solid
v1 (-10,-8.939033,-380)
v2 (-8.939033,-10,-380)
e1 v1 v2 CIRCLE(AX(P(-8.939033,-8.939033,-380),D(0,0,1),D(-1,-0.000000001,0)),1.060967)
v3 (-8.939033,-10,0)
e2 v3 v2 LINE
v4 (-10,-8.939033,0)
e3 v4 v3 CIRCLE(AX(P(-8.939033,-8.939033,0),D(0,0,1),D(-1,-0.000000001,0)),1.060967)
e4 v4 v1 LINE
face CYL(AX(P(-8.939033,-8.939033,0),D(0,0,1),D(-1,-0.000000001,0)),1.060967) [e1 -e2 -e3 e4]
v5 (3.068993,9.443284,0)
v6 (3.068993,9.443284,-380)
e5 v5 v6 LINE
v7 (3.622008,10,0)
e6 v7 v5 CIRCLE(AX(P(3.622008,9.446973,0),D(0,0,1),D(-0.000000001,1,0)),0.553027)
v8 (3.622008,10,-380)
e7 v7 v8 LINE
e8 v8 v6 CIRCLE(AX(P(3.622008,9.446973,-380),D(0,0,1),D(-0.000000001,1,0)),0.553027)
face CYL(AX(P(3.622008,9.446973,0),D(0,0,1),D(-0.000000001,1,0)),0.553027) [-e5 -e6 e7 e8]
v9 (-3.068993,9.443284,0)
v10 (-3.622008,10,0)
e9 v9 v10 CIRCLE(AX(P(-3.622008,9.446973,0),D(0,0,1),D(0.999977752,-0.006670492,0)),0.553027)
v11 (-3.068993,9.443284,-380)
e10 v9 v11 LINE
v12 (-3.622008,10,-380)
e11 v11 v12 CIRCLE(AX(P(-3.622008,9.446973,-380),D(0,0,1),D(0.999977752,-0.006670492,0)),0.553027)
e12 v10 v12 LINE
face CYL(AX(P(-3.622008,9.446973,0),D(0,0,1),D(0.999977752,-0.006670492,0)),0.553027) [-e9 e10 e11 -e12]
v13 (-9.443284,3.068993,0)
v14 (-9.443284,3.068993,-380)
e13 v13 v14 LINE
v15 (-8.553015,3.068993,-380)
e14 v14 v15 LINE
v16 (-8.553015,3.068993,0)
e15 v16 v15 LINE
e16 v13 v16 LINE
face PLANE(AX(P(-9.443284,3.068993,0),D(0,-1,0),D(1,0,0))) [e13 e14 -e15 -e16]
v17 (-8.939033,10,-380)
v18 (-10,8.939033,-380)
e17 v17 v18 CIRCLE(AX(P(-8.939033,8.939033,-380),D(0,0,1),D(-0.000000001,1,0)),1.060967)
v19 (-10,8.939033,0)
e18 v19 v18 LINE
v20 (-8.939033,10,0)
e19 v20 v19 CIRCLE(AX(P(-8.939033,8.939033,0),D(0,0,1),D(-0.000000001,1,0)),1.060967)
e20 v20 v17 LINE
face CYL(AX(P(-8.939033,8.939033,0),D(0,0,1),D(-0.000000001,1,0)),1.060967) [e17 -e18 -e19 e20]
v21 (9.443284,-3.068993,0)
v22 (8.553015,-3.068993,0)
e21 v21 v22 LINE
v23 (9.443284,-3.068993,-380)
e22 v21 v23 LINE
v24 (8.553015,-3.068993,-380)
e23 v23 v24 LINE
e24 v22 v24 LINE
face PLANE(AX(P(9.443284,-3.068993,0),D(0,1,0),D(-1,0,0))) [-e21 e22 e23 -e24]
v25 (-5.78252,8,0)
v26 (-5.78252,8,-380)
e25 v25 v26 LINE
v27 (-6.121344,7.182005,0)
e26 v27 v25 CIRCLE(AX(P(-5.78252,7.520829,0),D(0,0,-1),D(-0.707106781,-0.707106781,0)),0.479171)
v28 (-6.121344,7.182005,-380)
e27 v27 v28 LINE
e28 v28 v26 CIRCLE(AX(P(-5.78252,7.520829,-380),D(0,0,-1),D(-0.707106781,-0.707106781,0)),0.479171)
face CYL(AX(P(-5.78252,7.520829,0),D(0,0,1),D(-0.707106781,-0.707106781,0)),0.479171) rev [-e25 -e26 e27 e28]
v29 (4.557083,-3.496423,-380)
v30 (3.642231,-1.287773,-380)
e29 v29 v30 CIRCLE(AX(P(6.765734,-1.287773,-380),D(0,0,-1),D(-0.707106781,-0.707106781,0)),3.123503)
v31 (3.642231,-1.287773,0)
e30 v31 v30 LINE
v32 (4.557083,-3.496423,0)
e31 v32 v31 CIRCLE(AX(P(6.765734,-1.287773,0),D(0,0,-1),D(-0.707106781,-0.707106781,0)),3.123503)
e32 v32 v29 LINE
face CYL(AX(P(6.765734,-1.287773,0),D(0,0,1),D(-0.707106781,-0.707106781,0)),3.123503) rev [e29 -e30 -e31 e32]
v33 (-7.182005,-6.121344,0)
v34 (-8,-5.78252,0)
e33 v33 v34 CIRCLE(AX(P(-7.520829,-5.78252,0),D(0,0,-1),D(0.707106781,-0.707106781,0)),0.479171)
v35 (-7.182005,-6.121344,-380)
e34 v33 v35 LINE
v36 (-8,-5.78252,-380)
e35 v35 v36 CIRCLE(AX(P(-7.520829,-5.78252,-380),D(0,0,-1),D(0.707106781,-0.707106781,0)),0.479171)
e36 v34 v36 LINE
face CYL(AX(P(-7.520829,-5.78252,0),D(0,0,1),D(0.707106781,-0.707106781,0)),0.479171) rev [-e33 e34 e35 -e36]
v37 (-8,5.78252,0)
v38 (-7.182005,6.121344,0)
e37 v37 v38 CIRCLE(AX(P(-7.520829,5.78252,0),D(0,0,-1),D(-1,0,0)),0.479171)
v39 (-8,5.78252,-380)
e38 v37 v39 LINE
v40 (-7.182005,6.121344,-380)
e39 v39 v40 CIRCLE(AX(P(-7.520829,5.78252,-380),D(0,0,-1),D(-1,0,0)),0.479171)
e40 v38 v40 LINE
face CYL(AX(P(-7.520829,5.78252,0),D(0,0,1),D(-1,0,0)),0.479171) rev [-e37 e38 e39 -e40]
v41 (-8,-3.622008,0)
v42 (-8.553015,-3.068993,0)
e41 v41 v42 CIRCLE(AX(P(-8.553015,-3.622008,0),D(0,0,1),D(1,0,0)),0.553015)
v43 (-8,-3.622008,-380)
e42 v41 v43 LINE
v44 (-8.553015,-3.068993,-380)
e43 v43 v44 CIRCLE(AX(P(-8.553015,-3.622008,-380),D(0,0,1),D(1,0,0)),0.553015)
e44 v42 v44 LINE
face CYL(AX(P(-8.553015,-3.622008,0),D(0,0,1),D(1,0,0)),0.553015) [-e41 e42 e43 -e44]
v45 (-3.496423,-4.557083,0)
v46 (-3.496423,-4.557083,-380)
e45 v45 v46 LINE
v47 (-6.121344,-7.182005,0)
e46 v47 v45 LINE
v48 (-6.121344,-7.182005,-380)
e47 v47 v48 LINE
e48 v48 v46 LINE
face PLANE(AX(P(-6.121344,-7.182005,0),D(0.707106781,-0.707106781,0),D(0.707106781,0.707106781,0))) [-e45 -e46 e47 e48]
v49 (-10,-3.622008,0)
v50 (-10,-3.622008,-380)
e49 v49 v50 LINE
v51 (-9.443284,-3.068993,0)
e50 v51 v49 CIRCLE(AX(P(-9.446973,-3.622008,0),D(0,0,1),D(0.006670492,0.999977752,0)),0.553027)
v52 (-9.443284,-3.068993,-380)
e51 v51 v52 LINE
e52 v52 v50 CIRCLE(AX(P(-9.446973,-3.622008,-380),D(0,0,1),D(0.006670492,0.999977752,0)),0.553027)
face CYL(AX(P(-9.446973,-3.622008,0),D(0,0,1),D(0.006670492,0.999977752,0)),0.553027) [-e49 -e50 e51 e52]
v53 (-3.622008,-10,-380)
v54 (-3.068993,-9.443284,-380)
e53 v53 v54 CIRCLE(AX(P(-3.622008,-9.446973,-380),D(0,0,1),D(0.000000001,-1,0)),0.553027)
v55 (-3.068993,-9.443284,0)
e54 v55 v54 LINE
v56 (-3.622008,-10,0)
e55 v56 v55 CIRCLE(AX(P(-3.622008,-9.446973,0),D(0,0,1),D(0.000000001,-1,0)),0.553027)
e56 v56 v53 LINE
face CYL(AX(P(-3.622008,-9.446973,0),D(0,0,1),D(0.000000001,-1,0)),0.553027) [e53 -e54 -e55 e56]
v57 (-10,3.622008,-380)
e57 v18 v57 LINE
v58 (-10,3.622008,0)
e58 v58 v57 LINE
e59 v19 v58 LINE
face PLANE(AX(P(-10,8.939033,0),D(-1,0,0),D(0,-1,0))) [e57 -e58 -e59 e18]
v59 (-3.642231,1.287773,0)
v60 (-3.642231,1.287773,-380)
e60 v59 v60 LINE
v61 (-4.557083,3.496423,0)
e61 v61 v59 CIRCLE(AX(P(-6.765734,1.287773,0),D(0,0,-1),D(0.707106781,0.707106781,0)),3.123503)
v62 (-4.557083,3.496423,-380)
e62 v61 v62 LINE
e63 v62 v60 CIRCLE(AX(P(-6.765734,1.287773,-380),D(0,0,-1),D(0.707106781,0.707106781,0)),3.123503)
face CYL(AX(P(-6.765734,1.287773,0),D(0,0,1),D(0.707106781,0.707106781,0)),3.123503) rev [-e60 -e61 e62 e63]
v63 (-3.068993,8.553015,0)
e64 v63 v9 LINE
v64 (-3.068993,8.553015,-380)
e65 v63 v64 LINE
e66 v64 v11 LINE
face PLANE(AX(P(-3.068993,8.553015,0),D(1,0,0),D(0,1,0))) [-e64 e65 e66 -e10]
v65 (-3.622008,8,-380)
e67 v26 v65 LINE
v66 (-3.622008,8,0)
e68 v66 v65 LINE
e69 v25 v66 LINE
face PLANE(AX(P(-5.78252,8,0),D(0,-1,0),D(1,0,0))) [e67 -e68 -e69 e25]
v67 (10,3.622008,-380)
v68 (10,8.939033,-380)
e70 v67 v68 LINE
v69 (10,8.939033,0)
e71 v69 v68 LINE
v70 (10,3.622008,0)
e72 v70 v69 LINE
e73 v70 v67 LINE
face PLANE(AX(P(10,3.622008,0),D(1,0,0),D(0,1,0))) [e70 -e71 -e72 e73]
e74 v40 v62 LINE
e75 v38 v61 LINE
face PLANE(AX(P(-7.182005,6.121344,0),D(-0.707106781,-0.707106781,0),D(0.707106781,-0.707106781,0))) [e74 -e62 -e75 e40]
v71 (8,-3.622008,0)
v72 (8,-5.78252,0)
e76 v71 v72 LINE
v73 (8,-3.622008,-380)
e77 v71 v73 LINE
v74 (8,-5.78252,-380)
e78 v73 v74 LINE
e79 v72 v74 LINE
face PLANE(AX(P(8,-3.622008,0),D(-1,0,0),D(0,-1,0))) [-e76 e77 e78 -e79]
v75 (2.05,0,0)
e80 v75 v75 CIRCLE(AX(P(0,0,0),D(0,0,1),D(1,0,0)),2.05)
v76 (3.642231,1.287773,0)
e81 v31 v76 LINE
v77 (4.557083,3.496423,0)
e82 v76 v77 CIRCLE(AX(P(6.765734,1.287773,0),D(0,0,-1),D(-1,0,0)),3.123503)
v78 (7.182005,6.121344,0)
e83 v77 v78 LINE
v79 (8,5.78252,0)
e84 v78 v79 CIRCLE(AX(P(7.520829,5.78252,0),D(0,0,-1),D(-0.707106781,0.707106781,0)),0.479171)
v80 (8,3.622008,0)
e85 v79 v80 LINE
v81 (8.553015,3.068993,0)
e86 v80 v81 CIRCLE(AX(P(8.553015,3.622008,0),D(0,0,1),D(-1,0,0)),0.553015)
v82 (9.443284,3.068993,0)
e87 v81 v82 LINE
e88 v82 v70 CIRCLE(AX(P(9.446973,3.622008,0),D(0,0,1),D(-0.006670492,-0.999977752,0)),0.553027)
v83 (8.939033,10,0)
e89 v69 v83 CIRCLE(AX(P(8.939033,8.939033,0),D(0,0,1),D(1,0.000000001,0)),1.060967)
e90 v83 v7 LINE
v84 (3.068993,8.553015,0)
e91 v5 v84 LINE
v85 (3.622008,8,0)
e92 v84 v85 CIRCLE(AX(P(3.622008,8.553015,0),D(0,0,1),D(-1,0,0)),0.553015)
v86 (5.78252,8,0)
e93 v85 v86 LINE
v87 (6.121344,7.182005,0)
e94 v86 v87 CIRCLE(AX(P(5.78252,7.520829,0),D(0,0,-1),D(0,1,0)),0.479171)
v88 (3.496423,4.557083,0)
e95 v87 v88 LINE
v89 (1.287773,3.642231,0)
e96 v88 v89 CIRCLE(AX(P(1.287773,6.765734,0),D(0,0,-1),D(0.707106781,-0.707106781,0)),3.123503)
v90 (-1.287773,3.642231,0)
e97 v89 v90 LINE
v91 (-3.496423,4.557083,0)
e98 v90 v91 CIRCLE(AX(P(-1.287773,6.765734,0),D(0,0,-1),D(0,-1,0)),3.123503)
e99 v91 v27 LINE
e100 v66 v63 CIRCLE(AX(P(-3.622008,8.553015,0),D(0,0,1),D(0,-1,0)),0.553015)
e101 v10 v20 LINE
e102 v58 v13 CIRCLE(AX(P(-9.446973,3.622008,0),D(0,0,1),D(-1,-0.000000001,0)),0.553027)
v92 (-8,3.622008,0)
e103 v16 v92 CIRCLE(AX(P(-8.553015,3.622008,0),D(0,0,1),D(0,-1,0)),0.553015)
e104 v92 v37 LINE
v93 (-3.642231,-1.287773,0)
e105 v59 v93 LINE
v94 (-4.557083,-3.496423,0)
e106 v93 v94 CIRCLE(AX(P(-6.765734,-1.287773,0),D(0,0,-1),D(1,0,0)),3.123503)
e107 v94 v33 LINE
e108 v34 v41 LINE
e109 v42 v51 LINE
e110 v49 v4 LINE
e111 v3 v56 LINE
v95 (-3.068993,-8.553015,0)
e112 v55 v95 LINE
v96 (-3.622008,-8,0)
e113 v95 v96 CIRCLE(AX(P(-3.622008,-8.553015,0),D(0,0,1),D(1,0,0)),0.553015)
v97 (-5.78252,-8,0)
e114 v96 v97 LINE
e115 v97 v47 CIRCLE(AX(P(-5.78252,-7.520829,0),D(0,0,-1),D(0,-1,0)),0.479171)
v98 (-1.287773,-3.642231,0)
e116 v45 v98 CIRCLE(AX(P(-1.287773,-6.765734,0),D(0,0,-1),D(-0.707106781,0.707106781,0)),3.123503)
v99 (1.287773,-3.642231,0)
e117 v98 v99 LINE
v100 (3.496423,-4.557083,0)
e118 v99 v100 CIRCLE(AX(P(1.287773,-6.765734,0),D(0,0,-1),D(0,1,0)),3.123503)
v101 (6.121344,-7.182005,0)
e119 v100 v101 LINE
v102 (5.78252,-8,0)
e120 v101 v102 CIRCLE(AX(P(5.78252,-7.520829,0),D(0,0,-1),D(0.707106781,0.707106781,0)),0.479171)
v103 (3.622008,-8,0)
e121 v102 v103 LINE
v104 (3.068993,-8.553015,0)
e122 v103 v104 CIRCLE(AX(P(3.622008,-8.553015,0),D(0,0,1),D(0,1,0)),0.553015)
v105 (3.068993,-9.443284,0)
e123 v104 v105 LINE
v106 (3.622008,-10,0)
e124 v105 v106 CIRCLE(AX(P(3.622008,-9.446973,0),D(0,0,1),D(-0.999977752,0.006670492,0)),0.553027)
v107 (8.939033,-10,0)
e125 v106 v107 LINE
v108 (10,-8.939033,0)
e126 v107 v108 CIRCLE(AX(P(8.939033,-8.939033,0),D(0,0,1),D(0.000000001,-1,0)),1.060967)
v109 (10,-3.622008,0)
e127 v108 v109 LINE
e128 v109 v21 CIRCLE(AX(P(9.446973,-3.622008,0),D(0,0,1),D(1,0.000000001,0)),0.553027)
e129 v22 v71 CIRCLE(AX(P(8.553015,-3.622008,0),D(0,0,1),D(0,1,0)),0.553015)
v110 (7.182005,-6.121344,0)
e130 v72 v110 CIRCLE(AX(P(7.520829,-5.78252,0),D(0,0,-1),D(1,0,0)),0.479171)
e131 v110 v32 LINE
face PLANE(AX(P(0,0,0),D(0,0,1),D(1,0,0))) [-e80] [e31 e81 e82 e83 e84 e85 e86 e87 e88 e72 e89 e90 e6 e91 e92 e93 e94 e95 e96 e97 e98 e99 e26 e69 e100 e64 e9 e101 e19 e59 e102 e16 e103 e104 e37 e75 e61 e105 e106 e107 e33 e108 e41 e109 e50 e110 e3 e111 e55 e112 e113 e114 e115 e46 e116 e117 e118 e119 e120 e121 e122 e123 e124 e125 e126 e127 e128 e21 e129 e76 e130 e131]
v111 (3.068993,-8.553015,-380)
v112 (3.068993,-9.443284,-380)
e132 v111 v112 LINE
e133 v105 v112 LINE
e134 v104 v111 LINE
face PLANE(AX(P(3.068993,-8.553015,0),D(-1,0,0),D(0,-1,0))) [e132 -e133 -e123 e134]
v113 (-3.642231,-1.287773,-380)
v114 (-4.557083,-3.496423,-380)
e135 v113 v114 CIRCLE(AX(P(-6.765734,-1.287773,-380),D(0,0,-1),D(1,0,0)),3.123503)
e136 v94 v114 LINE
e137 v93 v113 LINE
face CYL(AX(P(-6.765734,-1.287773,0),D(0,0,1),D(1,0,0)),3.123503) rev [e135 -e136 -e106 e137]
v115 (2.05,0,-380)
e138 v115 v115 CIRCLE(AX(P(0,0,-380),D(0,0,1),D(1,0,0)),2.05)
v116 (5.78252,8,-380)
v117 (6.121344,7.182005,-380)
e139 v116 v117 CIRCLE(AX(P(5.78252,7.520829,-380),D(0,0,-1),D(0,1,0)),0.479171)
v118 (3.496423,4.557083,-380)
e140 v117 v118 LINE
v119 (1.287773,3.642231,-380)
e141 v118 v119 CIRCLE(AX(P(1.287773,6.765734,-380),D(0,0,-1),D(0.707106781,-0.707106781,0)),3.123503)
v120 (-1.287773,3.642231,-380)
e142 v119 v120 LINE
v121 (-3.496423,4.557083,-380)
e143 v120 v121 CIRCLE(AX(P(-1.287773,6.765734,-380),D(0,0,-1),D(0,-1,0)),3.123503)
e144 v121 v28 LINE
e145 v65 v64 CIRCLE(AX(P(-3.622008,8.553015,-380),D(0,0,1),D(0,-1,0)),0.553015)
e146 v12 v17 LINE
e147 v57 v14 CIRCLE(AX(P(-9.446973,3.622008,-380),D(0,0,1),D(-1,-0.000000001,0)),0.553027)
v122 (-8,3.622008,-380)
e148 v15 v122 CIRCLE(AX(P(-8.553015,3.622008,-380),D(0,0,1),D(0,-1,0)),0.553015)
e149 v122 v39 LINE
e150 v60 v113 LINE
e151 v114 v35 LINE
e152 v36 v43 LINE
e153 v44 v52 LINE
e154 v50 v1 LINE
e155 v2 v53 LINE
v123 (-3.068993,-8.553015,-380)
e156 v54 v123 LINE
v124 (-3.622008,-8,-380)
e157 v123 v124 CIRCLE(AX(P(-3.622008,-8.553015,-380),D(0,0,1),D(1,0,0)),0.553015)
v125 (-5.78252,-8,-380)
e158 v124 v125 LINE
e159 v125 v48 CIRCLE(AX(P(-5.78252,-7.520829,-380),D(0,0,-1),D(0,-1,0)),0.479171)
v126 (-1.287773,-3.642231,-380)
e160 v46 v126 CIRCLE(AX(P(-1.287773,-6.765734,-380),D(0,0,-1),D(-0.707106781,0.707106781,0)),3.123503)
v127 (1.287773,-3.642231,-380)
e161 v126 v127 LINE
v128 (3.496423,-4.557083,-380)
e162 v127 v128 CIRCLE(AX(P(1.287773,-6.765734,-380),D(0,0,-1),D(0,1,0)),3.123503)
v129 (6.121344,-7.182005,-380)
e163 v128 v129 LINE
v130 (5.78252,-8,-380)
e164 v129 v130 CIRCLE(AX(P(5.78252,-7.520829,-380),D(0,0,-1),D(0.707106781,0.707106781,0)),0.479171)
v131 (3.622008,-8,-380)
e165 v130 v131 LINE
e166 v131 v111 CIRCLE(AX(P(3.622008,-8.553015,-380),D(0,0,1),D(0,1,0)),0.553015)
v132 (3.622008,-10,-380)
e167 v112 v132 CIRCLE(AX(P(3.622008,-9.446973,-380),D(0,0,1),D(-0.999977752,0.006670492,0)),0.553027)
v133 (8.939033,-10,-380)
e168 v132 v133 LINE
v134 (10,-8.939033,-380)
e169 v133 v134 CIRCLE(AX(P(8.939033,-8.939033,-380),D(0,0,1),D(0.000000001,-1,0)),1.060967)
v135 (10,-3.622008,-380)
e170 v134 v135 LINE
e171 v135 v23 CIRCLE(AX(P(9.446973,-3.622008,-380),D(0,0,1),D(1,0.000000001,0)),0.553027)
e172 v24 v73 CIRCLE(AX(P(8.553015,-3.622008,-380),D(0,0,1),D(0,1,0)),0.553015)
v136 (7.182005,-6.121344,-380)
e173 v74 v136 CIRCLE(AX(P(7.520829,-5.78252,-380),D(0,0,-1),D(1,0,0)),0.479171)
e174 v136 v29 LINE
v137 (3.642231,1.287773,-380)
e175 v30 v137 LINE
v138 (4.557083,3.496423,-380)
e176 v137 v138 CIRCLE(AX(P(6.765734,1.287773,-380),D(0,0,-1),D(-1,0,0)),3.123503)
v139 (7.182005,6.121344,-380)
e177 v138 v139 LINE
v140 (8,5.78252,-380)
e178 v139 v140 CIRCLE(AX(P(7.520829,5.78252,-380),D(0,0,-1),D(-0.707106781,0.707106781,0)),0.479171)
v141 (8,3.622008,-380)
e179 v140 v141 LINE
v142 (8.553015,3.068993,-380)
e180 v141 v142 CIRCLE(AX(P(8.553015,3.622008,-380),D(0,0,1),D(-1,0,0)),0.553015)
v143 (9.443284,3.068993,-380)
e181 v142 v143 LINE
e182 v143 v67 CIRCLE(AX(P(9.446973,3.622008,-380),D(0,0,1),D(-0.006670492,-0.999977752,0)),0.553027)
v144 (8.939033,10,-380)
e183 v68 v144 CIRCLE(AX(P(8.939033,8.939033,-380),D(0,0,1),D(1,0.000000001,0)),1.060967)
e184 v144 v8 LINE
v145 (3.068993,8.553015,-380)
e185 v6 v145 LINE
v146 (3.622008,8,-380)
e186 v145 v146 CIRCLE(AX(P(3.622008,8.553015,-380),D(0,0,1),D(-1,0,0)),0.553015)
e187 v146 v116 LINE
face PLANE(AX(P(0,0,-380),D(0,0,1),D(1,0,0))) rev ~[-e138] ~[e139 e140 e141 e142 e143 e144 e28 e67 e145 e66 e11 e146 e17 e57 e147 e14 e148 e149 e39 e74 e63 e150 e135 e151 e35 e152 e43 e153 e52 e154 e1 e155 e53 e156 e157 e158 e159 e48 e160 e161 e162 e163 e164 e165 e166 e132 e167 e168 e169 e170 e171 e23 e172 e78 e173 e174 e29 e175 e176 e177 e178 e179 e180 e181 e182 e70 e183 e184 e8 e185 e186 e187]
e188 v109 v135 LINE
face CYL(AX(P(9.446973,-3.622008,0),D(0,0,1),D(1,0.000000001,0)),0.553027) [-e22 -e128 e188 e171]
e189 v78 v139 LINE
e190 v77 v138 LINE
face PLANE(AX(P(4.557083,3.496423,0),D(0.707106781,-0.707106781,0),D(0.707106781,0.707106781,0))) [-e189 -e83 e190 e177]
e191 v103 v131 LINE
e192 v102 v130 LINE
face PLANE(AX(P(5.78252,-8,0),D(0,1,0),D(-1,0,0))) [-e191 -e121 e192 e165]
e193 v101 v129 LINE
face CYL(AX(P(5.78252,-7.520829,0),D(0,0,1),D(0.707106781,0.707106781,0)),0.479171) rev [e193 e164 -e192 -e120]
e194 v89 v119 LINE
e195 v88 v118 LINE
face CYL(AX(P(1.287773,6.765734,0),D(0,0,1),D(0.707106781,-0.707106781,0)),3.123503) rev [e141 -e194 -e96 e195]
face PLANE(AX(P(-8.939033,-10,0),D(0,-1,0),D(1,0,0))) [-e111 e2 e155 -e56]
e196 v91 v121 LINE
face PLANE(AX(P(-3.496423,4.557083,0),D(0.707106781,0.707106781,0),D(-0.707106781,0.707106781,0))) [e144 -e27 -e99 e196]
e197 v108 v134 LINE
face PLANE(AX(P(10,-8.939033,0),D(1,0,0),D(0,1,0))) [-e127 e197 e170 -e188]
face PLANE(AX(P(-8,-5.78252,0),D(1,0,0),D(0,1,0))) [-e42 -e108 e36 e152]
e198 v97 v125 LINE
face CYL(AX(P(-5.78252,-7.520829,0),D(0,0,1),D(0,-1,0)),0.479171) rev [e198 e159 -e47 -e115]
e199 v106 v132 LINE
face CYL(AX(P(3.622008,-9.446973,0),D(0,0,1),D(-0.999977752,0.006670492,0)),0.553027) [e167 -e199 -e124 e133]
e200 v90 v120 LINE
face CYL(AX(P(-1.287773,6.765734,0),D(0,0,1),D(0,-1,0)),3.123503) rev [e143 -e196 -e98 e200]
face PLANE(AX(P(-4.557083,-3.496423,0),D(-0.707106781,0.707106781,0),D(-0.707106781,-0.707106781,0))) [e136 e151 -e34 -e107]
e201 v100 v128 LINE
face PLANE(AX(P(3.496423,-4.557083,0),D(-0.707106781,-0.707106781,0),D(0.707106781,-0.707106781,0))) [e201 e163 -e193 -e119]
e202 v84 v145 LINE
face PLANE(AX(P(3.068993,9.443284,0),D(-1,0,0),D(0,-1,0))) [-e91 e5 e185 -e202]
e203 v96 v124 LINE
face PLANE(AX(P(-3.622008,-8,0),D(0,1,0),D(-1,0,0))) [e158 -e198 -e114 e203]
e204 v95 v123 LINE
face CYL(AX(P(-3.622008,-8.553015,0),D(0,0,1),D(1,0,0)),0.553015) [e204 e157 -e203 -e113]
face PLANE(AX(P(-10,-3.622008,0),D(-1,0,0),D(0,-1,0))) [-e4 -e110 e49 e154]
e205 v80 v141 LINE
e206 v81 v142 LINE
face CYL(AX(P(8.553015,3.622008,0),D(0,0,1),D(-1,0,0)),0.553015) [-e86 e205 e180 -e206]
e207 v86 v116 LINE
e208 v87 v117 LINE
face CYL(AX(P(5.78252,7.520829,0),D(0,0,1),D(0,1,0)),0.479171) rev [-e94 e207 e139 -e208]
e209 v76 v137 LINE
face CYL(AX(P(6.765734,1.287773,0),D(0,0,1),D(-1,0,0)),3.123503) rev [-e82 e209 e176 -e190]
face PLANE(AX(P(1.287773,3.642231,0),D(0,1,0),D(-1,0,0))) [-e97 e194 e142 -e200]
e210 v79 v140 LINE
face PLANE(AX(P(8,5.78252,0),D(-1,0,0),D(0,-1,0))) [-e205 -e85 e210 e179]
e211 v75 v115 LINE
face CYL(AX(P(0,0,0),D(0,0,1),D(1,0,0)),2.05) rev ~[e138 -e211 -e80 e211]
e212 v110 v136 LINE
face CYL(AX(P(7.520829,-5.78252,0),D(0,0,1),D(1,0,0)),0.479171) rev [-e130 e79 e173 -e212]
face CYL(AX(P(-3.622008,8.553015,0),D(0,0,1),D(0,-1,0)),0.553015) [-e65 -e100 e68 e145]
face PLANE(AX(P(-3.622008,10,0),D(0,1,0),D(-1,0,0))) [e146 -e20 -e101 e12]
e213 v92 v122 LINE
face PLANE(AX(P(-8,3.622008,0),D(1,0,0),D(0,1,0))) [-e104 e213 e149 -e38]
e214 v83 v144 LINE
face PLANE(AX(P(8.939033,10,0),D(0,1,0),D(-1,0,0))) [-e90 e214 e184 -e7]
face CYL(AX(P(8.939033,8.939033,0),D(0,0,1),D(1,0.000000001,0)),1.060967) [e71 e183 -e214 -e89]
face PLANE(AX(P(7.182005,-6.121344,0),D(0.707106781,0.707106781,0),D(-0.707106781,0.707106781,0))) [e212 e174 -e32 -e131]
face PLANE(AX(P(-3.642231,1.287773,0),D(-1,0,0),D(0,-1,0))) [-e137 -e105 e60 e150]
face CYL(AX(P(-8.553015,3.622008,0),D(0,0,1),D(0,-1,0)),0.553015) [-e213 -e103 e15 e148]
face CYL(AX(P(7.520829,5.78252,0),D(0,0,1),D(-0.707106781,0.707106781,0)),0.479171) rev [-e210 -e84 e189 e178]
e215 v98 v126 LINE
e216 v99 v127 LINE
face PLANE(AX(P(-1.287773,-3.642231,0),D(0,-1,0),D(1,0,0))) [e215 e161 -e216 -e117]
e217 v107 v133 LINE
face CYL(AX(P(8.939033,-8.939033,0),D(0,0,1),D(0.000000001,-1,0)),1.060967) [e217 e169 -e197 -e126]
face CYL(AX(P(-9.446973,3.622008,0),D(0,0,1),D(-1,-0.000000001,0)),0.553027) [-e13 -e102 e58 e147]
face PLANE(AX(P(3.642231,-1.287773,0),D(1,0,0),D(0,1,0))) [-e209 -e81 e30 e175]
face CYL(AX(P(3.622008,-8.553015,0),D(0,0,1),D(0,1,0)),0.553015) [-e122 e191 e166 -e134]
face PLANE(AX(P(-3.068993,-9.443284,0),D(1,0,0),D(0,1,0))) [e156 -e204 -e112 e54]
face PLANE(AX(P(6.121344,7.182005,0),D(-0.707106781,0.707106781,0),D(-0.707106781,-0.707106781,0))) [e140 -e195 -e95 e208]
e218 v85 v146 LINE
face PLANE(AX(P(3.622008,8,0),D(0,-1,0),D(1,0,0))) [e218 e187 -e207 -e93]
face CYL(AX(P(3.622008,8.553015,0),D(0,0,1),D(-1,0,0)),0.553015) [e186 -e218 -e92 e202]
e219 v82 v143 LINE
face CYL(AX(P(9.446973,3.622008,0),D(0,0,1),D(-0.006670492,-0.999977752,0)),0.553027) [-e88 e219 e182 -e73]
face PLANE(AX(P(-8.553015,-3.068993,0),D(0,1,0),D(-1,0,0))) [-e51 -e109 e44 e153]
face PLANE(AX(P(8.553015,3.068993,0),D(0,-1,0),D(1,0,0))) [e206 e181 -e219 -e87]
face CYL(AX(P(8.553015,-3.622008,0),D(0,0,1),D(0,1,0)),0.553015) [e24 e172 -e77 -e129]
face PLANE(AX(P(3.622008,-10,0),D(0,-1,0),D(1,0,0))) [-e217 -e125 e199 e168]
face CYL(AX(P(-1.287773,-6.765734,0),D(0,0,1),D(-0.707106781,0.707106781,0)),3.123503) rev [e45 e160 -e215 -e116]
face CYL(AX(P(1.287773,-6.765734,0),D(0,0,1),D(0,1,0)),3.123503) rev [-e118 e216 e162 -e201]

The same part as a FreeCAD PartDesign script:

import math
import FreeCAD as App
import Part
import Sketcher

doc = App.newDocument("Part")
params = doc.addObject("Spreadsheet::Sheet", "Params")
for row, (alias, value) in enumerate([
    ("sketch1_diameter", "4.1 mm"),
    ("pad1_length", "380 mm"),
], start=1):
    params.set(f"A{row}", alias)
    params.set(f"B{row}", "=" + value)
    params.setAlias(f"B{row}", alias)

body = doc.addObject("PartDesign::Body", "Body")

# Sketch on XY plane
sketch1 = doc.addObject("Sketcher::SketchObject", "Sketch")
body.addObject(sketch1)
sketch1.AttachmentSupport = (doc.XY_Plane, [""])
sketch1.MapMode = "FlatFace"
sketch1.addGeometry(Part.LineSegment(App.Vector(-3.642231, 1.287773, 0), App.Vector(-3.642231, -1.287773, 0)), False)
sketch1.addGeometry(Part.ArcOfCircle(Part.Circle(App.Vector(-6.765734, -1.287773, 0), App.Vector(0, 0, 1), 3.123503), math.radians(-45), math.radians(0)), False)
sketch1.addGeometry(Part.LineSegment(App.Vector(-4.557083, -3.496423, 0), App.Vector(-7.182005, -6.121344, 0)), False)
sketch1.addGeometry(Part.ArcOfCircle(Part.Circle(App.Vector(-7.520829, -5.78252, 0), App.Vector(0, 0, 1), 0.479171), math.radians(180), math.radians(315)), False)
sketch1.addGeometry(Part.LineSegment(App.Vector(-8, -5.78252, 0), App.Vector(-8, -3.622008, 0)), False)
sketch1.addGeometry(Part.ArcOfCircle(Part.Circle(App.Vector(-8.553015, -3.622008, 0), App.Vector(0, 0, 1), 0.553015), math.radians(0), math.radians(90)), False)
sketch1.addGeometry(Part.LineSegment(App.Vector(-8.553015, -3.068993, 0), App.Vector(-9.443284, -3.068993, 0)), False)
sketch1.addGeometry(Part.ArcOfCircle(Part.Circle(App.Vector(-9.446973, -3.622008, 0), App.Vector(0, 0, 1), 0.553027), math.radians(89.617806), math.radians(180)), False)
sketch1.addGeometry(Part.LineSegment(App.Vector(-10, -3.622008, 0), App.Vector(-10, -8.939033, 0)), False)
sketch1.addGeometry(Part.ArcOfCircle(Part.Circle(App.Vector(-8.939033, -8.939033, 0), App.Vector(0, 0, 1), 1.060967), math.radians(-180), math.radians(-90)), False)
sketch1.addGeometry(Part.LineSegment(App.Vector(-8.939033, -10, 0), App.Vector(-3.622008, -10, 0)), False)
sketch1.addGeometry(Part.ArcOfCircle(Part.Circle(App.Vector(-3.622008, -9.446973, 0), App.Vector(0, 0, 1), 0.553027), math.radians(-90), math.radians(0.382194)), False)
sketch1.addGeometry(Part.LineSegment(App.Vector(-3.068993, -9.443284, 0), App.Vector(-3.068993, -8.553015, 0)), False)
sketch1.addGeometry(Part.ArcOfCircle(Part.Circle(App.Vector(-3.622008, -8.553015, 0), App.Vector(0, 0, 1), 0.553015), math.radians(0), math.radians(90)), False)
sketch1.addGeometry(Part.LineSegment(App.Vector(-3.622008, -8, 0), App.Vector(-5.78252, -8, 0)), False)
sketch1.addGeometry(Part.ArcOfCircle(Part.Circle(App.Vector(-5.78252, -7.520829, 0), App.Vector(0, 0, 1), 0.479171), math.radians(135), math.radians(270)), False)
sketch1.addGeometry(Part.LineSegment(App.Vector(-6.121344, -7.182005, 0), App.Vector(-3.496423, -4.557083, 0)), False)
sketch1.addGeometry(Part.ArcOfCircle(Part.Circle(App.Vector(-1.287773, -6.765734, 0), App.Vector(0, 0, 1), 3.123503), math.radians(90), math.radians(135)), False)
sketch1.addGeometry(Part.LineSegment(App.Vector(-1.287773, -3.642231, 0), App.Vector(1.287773, -3.642231, 0)), False)
sketch1.addGeometry(Part.ArcOfCircle(Part.Circle(App.Vector(1.287773, -6.765734, 0), App.Vector(0, 0, 1), 3.123503), math.radians(45), math.radians(90)), False)
sketch1.addGeometry(Part.LineSegment(App.Vector(3.496423, -4.557083, 0), App.Vector(6.121344, -7.182005, 0)), False)
sketch1.addGeometry(Part.ArcOfCircle(Part.Circle(App.Vector(5.78252, -7.520829, 0), App.Vector(0, 0, 1), 0.479171), math.radians(-90), math.radians(45)), False)
sketch1.addGeometry(Part.LineSegment(App.Vector(5.78252, -8, 0), App.Vector(3.622008, -8, 0)), False)
sketch1.addGeometry(Part.ArcOfCircle(Part.Circle(App.Vector(3.622008, -8.553015, 0), App.Vector(0, 0, 1), 0.553015), math.radians(90), math.radians(180)), False)
sketch1.addGeometry(Part.LineSegment(App.Vector(3.068993, -8.553015, 0), App.Vector(3.068993, -9.443284, 0)), False)
sketch1.addGeometry(Part.ArcOfCircle(Part.Circle(App.Vector(3.622008, -9.446973, 0), App.Vector(0, 0, 1), 0.553027), math.radians(179.617806), math.radians(270)), False)
sketch1.addGeometry(Part.LineSegment(App.Vector(3.622008, -10, 0), App.Vector(8.939033, -10, 0)), False)
sketch1.addGeometry(Part.ArcOfCircle(Part.Circle(App.Vector(8.939033, -8.939033, 0), App.Vector(0, 0, 1), 1.060967), math.radians(-90), math.radians(0)), False)
sketch1.addGeometry(Part.LineSegment(App.Vector(10, -8.939033, 0), App.Vector(10, -3.622008, 0)), False)
sketch1.addGeometry(Part.ArcOfCircle(Part.Circle(App.Vector(9.446973, -3.622008, 0), App.Vector(0, 0, 1), 0.553027), math.radians(0), math.radians(90.382194)), False)
sketch1.addGeometry(Part.LineSegment(App.Vector(9.443284, -3.068993, 0), App.Vector(8.553015, -3.068993, 0)), False)
sketch1.addGeometry(Part.ArcOfCircle(Part.Circle(App.Vector(8.553015, -3.622008, 0), App.Vector(0, 0, 1), 0.553015), math.radians(90), math.radians(180)), False)
sketch1.addGeometry(Part.LineSegment(App.Vector(8, -3.622008, 0), App.Vector(8, -5.78252, 0)), False)
sketch1.addGeometry(Part.ArcOfCircle(Part.Circle(App.Vector(7.520829, -5.78252, 0), App.Vector(0, 0, 1), 0.479171), math.radians(-135), math.radians(0)), False)
sketch1.addGeometry(Part.LineSegment(App.Vector(7.182005, -6.121344, 0), App.Vector(4.557083, -3.496423, 0)), False)
sketch1.addGeometry(Part.ArcOfCircle(Part.Circle(App.Vector(6.765734, -1.287773, 0), App.Vector(0, 0, 1), 3.123503), math.radians(180), math.radians(225)), False)
sketch1.addGeometry(Part.LineSegment(App.Vector(3.642231, -1.287773, 0), App.Vector(3.642231, 1.287773, 0)), False)
sketch1.addGeometry(Part.ArcOfCircle(Part.Circle(App.Vector(6.765734, 1.287773, 0), App.Vector(0, 0, 1), 3.123503), math.radians(135), math.radians(180)), False)
sketch1.addGeometry(Part.LineSegment(App.Vector(4.557083, 3.496423, 0), App.Vector(7.182005, 6.121344, 0)), False)
sketch1.addGeometry(Part.ArcOfCircle(Part.Circle(App.Vector(7.520829, 5.78252, 0), App.Vector(0, 0, 1), 0.479171), math.radians(0), math.radians(135)), False)
sketch1.addGeometry(Part.LineSegment(App.Vector(8, 5.78252, 0), App.Vector(8, 3.622008, 0)), False)
sketch1.addGeometry(Part.ArcOfCircle(Part.Circle(App.Vector(8.553015, 3.622008, 0), App.Vector(0, 0, 1), 0.553015), math.radians(180), math.radians(270)), False)
sketch1.addGeometry(Part.LineSegment(App.Vector(8.553015, 3.068993, 0), App.Vector(9.443284, 3.068993, 0)), False)
sketch1.addGeometry(Part.ArcOfCircle(Part.Circle(App.Vector(9.446973, 3.622008, 0), App.Vector(0, 0, 1), 0.553027), math.radians(-90.382194), math.radians(0)), False)
sketch1.addGeometry(Part.LineSegment(App.Vector(10, 3.622008, 0), App.Vector(10, 8.939033, 0)), False)
sketch1.addGeometry(Part.ArcOfCircle(Part.Circle(App.Vector(8.939033, 8.939033, 0), App.Vector(0, 0, 1), 1.060967), math.radians(0), math.radians(90)), False)
sketch1.addGeometry(Part.LineSegment(App.Vector(8.939033, 10, 0), App.Vector(3.622008, 10, 0)), False)
sketch1.addGeometry(Part.ArcOfCircle(Part.Circle(App.Vector(3.622008, 9.446973, 0), App.Vector(0, 0, 1), 0.553027), math.radians(90), math.radians(180.382194)), False)
sketch1.addGeometry(Part.LineSegment(App.Vector(3.068993, 9.443284, 0), App.Vector(3.068993, 8.553015, 0)), False)
sketch1.addGeometry(Part.ArcOfCircle(Part.Circle(App.Vector(3.622008, 8.553015, 0), App.Vector(0, 0, 1), 0.553015), math.radians(180), math.radians(270)), False)
sketch1.addGeometry(Part.LineSegment(App.Vector(3.622008, 8, 0), App.Vector(5.78252, 8, 0)), False)
sketch1.addGeometry(Part.ArcOfCircle(Part.Circle(App.Vector(5.78252, 7.520829, 0), App.Vector(0, 0, 1), 0.479171), math.radians(-45), math.radians(90)), False)
sketch1.addGeometry(Part.LineSegment(App.Vector(6.121344, 7.182005, 0), App.Vector(3.496423, 4.557083, 0)), False)
sketch1.addGeometry(Part.ArcOfCircle(Part.Circle(App.Vector(1.287773, 6.765734, 0), App.Vector(0, 0, 1), 3.123503), math.radians(-90), math.radians(-45)), False)
sketch1.addGeometry(Part.LineSegment(App.Vector(1.287773, 3.642231, 0), App.Vector(-1.287773, 3.642231, 0)), False)
sketch1.addGeometry(Part.ArcOfCircle(Part.Circle(App.Vector(-1.287773, 6.765734, 0), App.Vector(0, 0, 1), 3.123503), math.radians(-135), math.radians(-90)), False)
sketch1.addGeometry(Part.LineSegment(App.Vector(-3.496423, 4.557083, 0), App.Vector(-6.121344, 7.182005, 0)), False)
sketch1.addGeometry(Part.ArcOfCircle(Part.Circle(App.Vector(-5.78252, 7.520829, 0), App.Vector(0, 0, 1), 0.479171), math.radians(90), math.radians(225)), False)
sketch1.addGeometry(Part.LineSegment(App.Vector(-5.78252, 8, 0), App.Vector(-3.622008, 8, 0)), False)
sketch1.addGeometry(Part.ArcOfCircle(Part.Circle(App.Vector(-3.622008, 8.553015, 0), App.Vector(0, 0, 1), 0.553015), math.radians(-90), math.radians(0)), False)
sketch1.addGeometry(Part.LineSegment(App.Vector(-3.068993, 8.553015, 0), App.Vector(-3.068993, 9.443284, 0)), False)
sketch1.addGeometry(Part.ArcOfCircle(Part.Circle(App.Vector(-3.622008, 9.446973, 0), App.Vector(0, 0, 1), 0.553027), math.radians(-0.382194), math.radians(90)), False)
sketch1.addGeometry(Part.LineSegment(App.Vector(-3.622008, 10, 0), App.Vector(-8.939033, 10, 0)), False)
sketch1.addGeometry(Part.ArcOfCircle(Part.Circle(App.Vector(-8.939033, 8.939033, 0), App.Vector(0, 0, 1), 1.060967), math.radians(90), math.radians(180)), False)
sketch1.addGeometry(Part.LineSegment(App.Vector(-10, 8.939033, 0), App.Vector(-10, 3.622008, 0)), False)
sketch1.addGeometry(Part.ArcOfCircle(Part.Circle(App.Vector(-9.446973, 3.622008, 0), App.Vector(0, 0, 1), 0.553027), math.radians(180), math.radians(270.382194)), False)
sketch1.addGeometry(Part.LineSegment(App.Vector(-9.443284, 3.068993, 0), App.Vector(-8.553015, 3.068993, 0)), False)
sketch1.addGeometry(Part.ArcOfCircle(Part.Circle(App.Vector(-8.553015, 3.622008, 0), App.Vector(0, 0, 1), 0.553015), math.radians(-90), math.radians(0)), False)
sketch1.addGeometry(Part.LineSegment(App.Vector(-8, 3.622008, 0), App.Vector(-8, 5.78252, 0)), False)
sketch1.addGeometry(Part.ArcOfCircle(Part.Circle(App.Vector(-7.520829, 5.78252, 0), App.Vector(0, 0, 1), 0.479171), math.radians(45), math.radians(180)), False)
sketch1.addGeometry(Part.LineSegment(App.Vector(-7.182005, 6.121344, 0), App.Vector(-4.557083, 3.496423, 0)), False)
sketch1.addGeometry(Part.ArcOfCircle(Part.Circle(App.Vector(-6.765734, 1.287773, 0), App.Vector(0, 0, 1), 3.123503), math.radians(0), math.radians(45)), False)
sketch1.addGeometry(Part.Circle(App.Vector(0, 0, 0), App.Vector(0, 0, 1), 2.05), False)
sketch1.addConstraint(Sketcher.Constraint("Tangent", 0, 2, 1, 2))
sketch1.addConstraint(Sketcher.Constraint("Tangent", 1, 1, 2, 1))
sketch1.addConstraint(Sketcher.Constraint("Tangent", 2, 2, 3, 2))
sketch1.addConstraint(Sketcher.Constraint("Tangent", 3, 1, 4, 1))
sketch1.addConstraint(Sketcher.Constraint("Tangent", 4, 2, 5, 1))
sketch1.addConstraint(Sketcher.Constraint("Tangent", 5, 2, 6, 1))
sketch1.addConstraint(Sketcher.Constraint("Coincident", 6, 2, 7, 1))
sketch1.addConstraint(Sketcher.Constraint("Tangent", 7, 2, 8, 1))
sketch1.addConstraint(Sketcher.Constraint("Tangent", 8, 2, 9, 1))
sketch1.addConstraint(Sketcher.Constraint("Tangent", 9, 2, 10, 1))
sketch1.addConstraint(Sketcher.Constraint("Tangent", 10, 2, 11, 1))
sketch1.addConstraint(Sketcher.Constraint("Coincident", 11, 2, 12, 1))
sketch1.addConstraint(Sketcher.Constraint("Tangent", 12, 2, 13, 1))
sketch1.addConstraint(Sketcher.Constraint("Tangent", 13, 2, 14, 1))
sketch1.addConstraint(Sketcher.Constraint("Tangent", 14, 2, 15, 2))
sketch1.addConstraint(Sketcher.Constraint("Tangent", 15, 1, 16, 1))
sketch1.addConstraint(Sketcher.Constraint("Tangent", 16, 2, 17, 2))
sketch1.addConstraint(Sketcher.Constraint("Tangent", 17, 1, 18, 1))
sketch1.addConstraint(Sketcher.Constraint("Tangent", 18, 2, 19, 2))
sketch1.addConstraint(Sketcher.Constraint("Tangent", 19, 1, 20, 1))
sketch1.addConstraint(Sketcher.Constraint("Tangent", 20, 2, 21, 2))
sketch1.addConstraint(Sketcher.Constraint("Tangent", 21, 1, 22, 1))
sketch1.addConstraint(Sketcher.Constraint("Tangent", 22, 2, 23, 1))
sketch1.addConstraint(Sketcher.Constraint("Tangent", 23, 2, 24, 1))
sketch1.addConstraint(Sketcher.Constraint("Coincident", 24, 2, 25, 1))
sketch1.addConstraint(Sketcher.Constraint("Tangent", 25, 2, 26, 1))
sketch1.addConstraint(Sketcher.Constraint("Tangent", 26, 2, 27, 1))
sketch1.addConstraint(Sketcher.Constraint("Tangent", 27, 2, 28, 1))
sketch1.addConstraint(Sketcher.Constraint("Tangent", 28, 2, 29, 1))
sketch1.addConstraint(Sketcher.Constraint("Coincident", 29, 2, 30, 1))
sketch1.addConstraint(Sketcher.Constraint("Tangent", 30, 2, 31, 1))
sketch1.addConstraint(Sketcher.Constraint("Tangent", 31, 2, 32, 1))
sketch1.addConstraint(Sketcher.Constraint("Tangent", 32, 2, 33, 2))
sketch1.addConstraint(Sketcher.Constraint("Tangent", 33, 1, 34, 1))
sketch1.addConstraint(Sketcher.Constraint("Tangent", 34, 2, 35, 2))
sketch1.addConstraint(Sketcher.Constraint("Tangent", 35, 1, 36, 1))
sketch1.addConstraint(Sketcher.Constraint("Tangent", 36, 2, 37, 2))
sketch1.addConstraint(Sketcher.Constraint("Tangent", 37, 1, 38, 1))
sketch1.addConstraint(Sketcher.Constraint("Tangent", 38, 2, 39, 2))
sketch1.addConstraint(Sketcher.Constraint("Tangent", 39, 1, 40, 1))
sketch1.addConstraint(Sketcher.Constraint("Tangent", 40, 2, 41, 1))
sketch1.addConstraint(Sketcher.Constraint("Tangent", 41, 2, 42, 1))
sketch1.addConstraint(Sketcher.Constraint("Coincident", 42, 2, 43, 1))
sketch1.addConstraint(Sketcher.Constraint("Tangent", 43, 2, 44, 1))
sketch1.addConstraint(Sketcher.Constraint("Tangent", 44, 2, 45, 1))
sketch1.addConstraint(Sketcher.Constraint("Tangent", 45, 2, 46, 1))
sketch1.addConstraint(Sketcher.Constraint("Tangent", 46, 2, 47, 1))
sketch1.addConstraint(Sketcher.Constraint("Coincident", 47, 2, 48, 1))
sketch1.addConstraint(Sketcher.Constraint("Tangent", 48, 2, 49, 1))
sketch1.addConstraint(Sketcher.Constraint("Tangent", 49, 2, 50, 1))
sketch1.addConstraint(Sketcher.Constraint("Tangent", 50, 2, 51, 2))
sketch1.addConstraint(Sketcher.Constraint("Tangent", 51, 1, 52, 1))
sketch1.addConstraint(Sketcher.Constraint("Tangent", 52, 2, 53, 2))
sketch1.addConstraint(Sketcher.Constraint("Tangent", 53, 1, 54, 1))
sketch1.addConstraint(Sketcher.Constraint("Tangent", 54, 2, 55, 2))
sketch1.addConstraint(Sketcher.Constraint("Tangent", 55, 1, 56, 1))
sketch1.addConstraint(Sketcher.Constraint("Tangent", 56, 2, 57, 2))
sketch1.addConstraint(Sketcher.Constraint("Tangent", 57, 1, 58, 1))
sketch1.addConstraint(Sketcher.Constraint("Tangent", 58, 2, 59, 1))
sketch1.addConstraint(Sketcher.Constraint("Tangent", 59, 2, 60, 1))
sketch1.addConstraint(Sketcher.Constraint("Coincident", 60, 2, 61, 1))
sketch1.addConstraint(Sketcher.Constraint("Tangent", 61, 2, 62, 1))
sketch1.addConstraint(Sketcher.Constraint("Tangent", 62, 2, 63, 1))
sketch1.addConstraint(Sketcher.Constraint("Tangent", 63, 2, 64, 1))
sketch1.addConstraint(Sketcher.Constraint("Tangent", 64, 2, 65, 1))
sketch1.addConstraint(Sketcher.Constraint("Coincident", 65, 2, 66, 1))
sketch1.addConstraint(Sketcher.Constraint("Tangent", 66, 2, 67, 1))
sketch1.addConstraint(Sketcher.Constraint("Tangent", 67, 2, 68, 1))
sketch1.addConstraint(Sketcher.Constraint("Tangent", 68, 2, 69, 2))
sketch1.addConstraint(Sketcher.Constraint("Tangent", 69, 1, 70, 1))
sketch1.addConstraint(Sketcher.Constraint("Tangent", 70, 2, 71, 2))
sketch1.addConstraint(Sketcher.Constraint("Tangent", 71, 1, 0, 1))
sketch1.addConstraint(Sketcher.Constraint("Vertical", 0))
sketch1.addConstraint(Sketcher.Constraint("Vertical", 4))
sketch1.addConstraint(Sketcher.Constraint("Horizontal", 6))
sketch1.addConstraint(Sketcher.Constraint("Vertical", 8))
sketch1.addConstraint(Sketcher.Constraint("Horizontal", 10))
sketch1.addConstraint(Sketcher.Constraint("Vertical", 12))
sketch1.addConstraint(Sketcher.Constraint("Horizontal", 14))
sketch1.addConstraint(Sketcher.Constraint("Horizontal", 18))
sketch1.addConstraint(Sketcher.Constraint("Horizontal", 22))
sketch1.addConstraint(Sketcher.Constraint("Vertical", 24))
sketch1.addConstraint(Sketcher.Constraint("Horizontal", 26))
sketch1.addConstraint(Sketcher.Constraint("Vertical", 28))
sketch1.addConstraint(Sketcher.Constraint("Horizontal", 30))
sketch1.addConstraint(Sketcher.Constraint("Vertical", 32))
sketch1.addConstraint(Sketcher.Constraint("Vertical", 36))
sketch1.addConstraint(Sketcher.Constraint("Vertical", 40))
sketch1.addConstraint(Sketcher.Constraint("Horizontal", 42))
sketch1.addConstraint(Sketcher.Constraint("Vertical", 44))
sketch1.addConstraint(Sketcher.Constraint("Horizontal", 46))
sketch1.addConstraint(Sketcher.Constraint("Vertical", 48))
sketch1.addConstraint(Sketcher.Constraint("Horizontal", 50))
sketch1.addConstraint(Sketcher.Constraint("Horizontal", 54))
sketch1.addConstraint(Sketcher.Constraint("Horizontal", 58))
sketch1.addConstraint(Sketcher.Constraint("Vertical", 60))
sketch1.addConstraint(Sketcher.Constraint("Horizontal", 62))
sketch1.addConstraint(Sketcher.Constraint("Vertical", 64))
sketch1.addConstraint(Sketcher.Constraint("Horizontal", 66))
sketch1.addConstraint(Sketcher.Constraint("Vertical", 68))
sketch1.addConstraint(Sketcher.Constraint("Coincident", 72, 3, -1, 1))
sketch1.addConstraint(Sketcher.Constraint("Equal", 7, 11))
sketch1.addConstraint(Sketcher.Constraint("Equal", 5, 13))
sketch1.addConstraint(Sketcher.Constraint("Equal", 3, 15))
sketch1.addConstraint(Sketcher.Constraint("Equal", 1, 17))
sketch1.addConstraint(Sketcher.Constraint("Equal", 17, 19))
sketch1.addConstraint(Sketcher.Constraint("Equal", 15, 21))
sketch1.addConstraint(Sketcher.Constraint("Equal", 13, 23))
sketch1.addConstraint(Sketcher.Constraint("Equal", 11, 25))
sketch1.addConstraint(Sketcher.Constraint("Equal", 9, 27))
sketch1.addConstraint(Sketcher.Constraint("Equal", 25, 29))
sketch1.addConstraint(Sketcher.Constraint("Equal", 23, 31))
sketch1.addConstraint(Sketcher.Constraint("Equal", 21, 33))
sketch1.addConstraint(Sketcher.Constraint("Equal", 19, 35))
sketch1.addConstraint(Sketcher.Constraint("Equal", 35, 37))
sketch1.addConstraint(Sketcher.Constraint("Equal", 33, 39))
sketch1.addConstraint(Sketcher.Constraint("Equal", 31, 41))
sketch1.addConstraint(Sketcher.Constraint("Equal", 29, 43))
sketch1.addConstraint(Sketcher.Constraint("Equal", 27, 45))
sketch1.addConstraint(Sketcher.Constraint("Equal", 43, 47))
sketch1.addConstraint(Sketcher.Constraint("Equal", 41, 49))
sketch1.addConstraint(Sketcher.Constraint("Equal", 39, 51))
sketch1.addConstraint(Sketcher.Constraint("Equal", 37, 53))
sketch1.addConstraint(Sketcher.Constraint("Equal", 53, 55))
sketch1.addConstraint(Sketcher.Constraint("Equal", 51, 57))
sketch1.addConstraint(Sketcher.Constraint("Equal", 49, 59))
sketch1.addConstraint(Sketcher.Constraint("Equal", 47, 61))
sketch1.addConstraint(Sketcher.Constraint("Equal", 45, 63))
sketch1.addConstraint(Sketcher.Constraint("Equal", 61, 65))
sketch1.addConstraint(Sketcher.Constraint("Equal", 59, 67))
sketch1.addConstraint(Sketcher.Constraint("Equal", 57, 69))
sketch1.addConstraint(Sketcher.Constraint("Equal", 55, 71))
sketch1.addConstraint(Sketcher.Constraint("Symmetric", 1, 3, 37, 3, -1, 1))
sketch1.addConstraint(Sketcher.Constraint("Symmetric", 3, 3, 39, 3, -1, 1))
sketch1.addConstraint(Sketcher.Constraint("Symmetric", 7, 3, 43, 3, -1, 1))
sketch1.addConstraint(Sketcher.Constraint("Symmetric", 11, 3, 47, 3, -1, 1))
sketch1.addConstraint(Sketcher.Constraint("Symmetric", 13, 3, 49, 3, -1, 1))
sketch1.addConstraint(Sketcher.Constraint("Symmetric", 17, 3, 53, 3, -1, 1))
sketch1.addConstraint(Sketcher.Constraint("Symmetric", 21, 3, 57, 3, -1, 1))
sketch1.addConstraint(Sketcher.Constraint("Symmetric", 25, 3, 61, 3, -1, 1))
sketch1.addConstraint(Sketcher.Constraint("Symmetric", 29, 3, 65, 3, -1, 1))
sketch1.addConstraint(Sketcher.Constraint("Symmetric", 31, 3, 67, 3, -1, 1))
sketch1.addConstraint(Sketcher.Constraint("Symmetric", 33, 1, 69, 1, -1, 1))
sketch1.addConstraint(Sketcher.Constraint("Symmetric", 15, 3, 21, 3, -2))
sketch1.addConstraint(Sketcher.Constraint("Symmetric", 11, 3, 25, 3, -2))
sketch1.addConstraint(Sketcher.Constraint("Symmetric", 7, 3, 29, 3, -2))
sketch1.addConstraint(Sketcher.Constraint("Symmetric", 5, 3, 31, 3, -2))
sketch1.addConstraint(Sketcher.Constraint("Symmetric", 2, 2, 33, 1, -2))
sketch1.addConstraint(Sketcher.Constraint("Symmetric", 52, 2, 55, 1, -2))
sketch1.addConstraint(Sketcher.Constraint("Parallel", 2, 16))
sketch1.addConstraint(Sketcher.Constraint("Perpendicular", 16, 20))
sketch1.addConstraint(Sketcher.Constraint("Parallel", 20, 34))
sketch1.addConstraint(Sketcher.Constraint("Horizontal", 5, 3, 7, 3))
sketch1.addConstraint(Sketcher.Constraint("Horizontal", 41, 3, 43, 3))
sketch1.addConstraint(Sketcher.Constraint("Horizontal", 11, 2, 24, 2))
sketch1.addConstraint(Sketcher.Constraint("Horizontal", 47, 2, 60, 2))
sketch1.addConstraint(Sketcher.Constraint("Equal", 54, 0))
sketch1.addConstraint(Sketcher.Constraint("Equal", 58, 4))
sketch1.addConstraint(Sketcher.Constraint("Equal", 62, 8))
sketch1.addConstraint(Sketcher.Constraint("Equal", 66, 12))
sketch1.addConstraint(Sketcher.Constraint("Equal", 2, 16))
sketch1.addConstraint(Sketcher.Constraint("Diameter", 72, 4.1))
sketch1.addConstraint(Sketcher.Constraint("DistanceX", 3, 1, -1, 1, 8.0))
sketch1.addConstraint(Sketcher.Constraint("DistanceX", 7, 2, -1, 1, 10.0))
sketch1.addConstraint(Sketcher.Constraint("DistanceY", 13, 2, -1, 1, 8.0))
sketch1.addConstraint(Sketcher.Constraint("Radius", 3, 0.479171))
sketch1.addConstraint(Sketcher.Constraint("Radius", 1, 3.123503))
sketch1.addConstraint(Sketcher.Constraint("Radius", 5, 0.553015))
sketch1.addConstraint(Sketcher.Constraint("Radius", 9, 1.060967))
sketch1.addConstraint(Sketcher.Constraint("Distance", 2, 3.712199))
sketch1.addConstraint(Sketcher.Constraint("DistanceX", 6, 2, 6, 1, 0.89027))
sketch1.addConstraint(Sketcher.Constraint("DistanceX", 14, 2, 14, 1, 2.160512))
sketch1.addConstraint(Sketcher.Constraint("DistanceX", 10, 1, 10, 2, 5.317026))
sketch1.setExpression("Constraints[161]", "Params.sketch1_diameter")
pad1 = doc.addObject("PartDesign::Pad", "Pad")
body.addObject(pad1)
pad1.Profile = sketch1
pad1.setExpression("Length", "Params.pad1_length")
pad1.Reversed = True

doc.recompute()
